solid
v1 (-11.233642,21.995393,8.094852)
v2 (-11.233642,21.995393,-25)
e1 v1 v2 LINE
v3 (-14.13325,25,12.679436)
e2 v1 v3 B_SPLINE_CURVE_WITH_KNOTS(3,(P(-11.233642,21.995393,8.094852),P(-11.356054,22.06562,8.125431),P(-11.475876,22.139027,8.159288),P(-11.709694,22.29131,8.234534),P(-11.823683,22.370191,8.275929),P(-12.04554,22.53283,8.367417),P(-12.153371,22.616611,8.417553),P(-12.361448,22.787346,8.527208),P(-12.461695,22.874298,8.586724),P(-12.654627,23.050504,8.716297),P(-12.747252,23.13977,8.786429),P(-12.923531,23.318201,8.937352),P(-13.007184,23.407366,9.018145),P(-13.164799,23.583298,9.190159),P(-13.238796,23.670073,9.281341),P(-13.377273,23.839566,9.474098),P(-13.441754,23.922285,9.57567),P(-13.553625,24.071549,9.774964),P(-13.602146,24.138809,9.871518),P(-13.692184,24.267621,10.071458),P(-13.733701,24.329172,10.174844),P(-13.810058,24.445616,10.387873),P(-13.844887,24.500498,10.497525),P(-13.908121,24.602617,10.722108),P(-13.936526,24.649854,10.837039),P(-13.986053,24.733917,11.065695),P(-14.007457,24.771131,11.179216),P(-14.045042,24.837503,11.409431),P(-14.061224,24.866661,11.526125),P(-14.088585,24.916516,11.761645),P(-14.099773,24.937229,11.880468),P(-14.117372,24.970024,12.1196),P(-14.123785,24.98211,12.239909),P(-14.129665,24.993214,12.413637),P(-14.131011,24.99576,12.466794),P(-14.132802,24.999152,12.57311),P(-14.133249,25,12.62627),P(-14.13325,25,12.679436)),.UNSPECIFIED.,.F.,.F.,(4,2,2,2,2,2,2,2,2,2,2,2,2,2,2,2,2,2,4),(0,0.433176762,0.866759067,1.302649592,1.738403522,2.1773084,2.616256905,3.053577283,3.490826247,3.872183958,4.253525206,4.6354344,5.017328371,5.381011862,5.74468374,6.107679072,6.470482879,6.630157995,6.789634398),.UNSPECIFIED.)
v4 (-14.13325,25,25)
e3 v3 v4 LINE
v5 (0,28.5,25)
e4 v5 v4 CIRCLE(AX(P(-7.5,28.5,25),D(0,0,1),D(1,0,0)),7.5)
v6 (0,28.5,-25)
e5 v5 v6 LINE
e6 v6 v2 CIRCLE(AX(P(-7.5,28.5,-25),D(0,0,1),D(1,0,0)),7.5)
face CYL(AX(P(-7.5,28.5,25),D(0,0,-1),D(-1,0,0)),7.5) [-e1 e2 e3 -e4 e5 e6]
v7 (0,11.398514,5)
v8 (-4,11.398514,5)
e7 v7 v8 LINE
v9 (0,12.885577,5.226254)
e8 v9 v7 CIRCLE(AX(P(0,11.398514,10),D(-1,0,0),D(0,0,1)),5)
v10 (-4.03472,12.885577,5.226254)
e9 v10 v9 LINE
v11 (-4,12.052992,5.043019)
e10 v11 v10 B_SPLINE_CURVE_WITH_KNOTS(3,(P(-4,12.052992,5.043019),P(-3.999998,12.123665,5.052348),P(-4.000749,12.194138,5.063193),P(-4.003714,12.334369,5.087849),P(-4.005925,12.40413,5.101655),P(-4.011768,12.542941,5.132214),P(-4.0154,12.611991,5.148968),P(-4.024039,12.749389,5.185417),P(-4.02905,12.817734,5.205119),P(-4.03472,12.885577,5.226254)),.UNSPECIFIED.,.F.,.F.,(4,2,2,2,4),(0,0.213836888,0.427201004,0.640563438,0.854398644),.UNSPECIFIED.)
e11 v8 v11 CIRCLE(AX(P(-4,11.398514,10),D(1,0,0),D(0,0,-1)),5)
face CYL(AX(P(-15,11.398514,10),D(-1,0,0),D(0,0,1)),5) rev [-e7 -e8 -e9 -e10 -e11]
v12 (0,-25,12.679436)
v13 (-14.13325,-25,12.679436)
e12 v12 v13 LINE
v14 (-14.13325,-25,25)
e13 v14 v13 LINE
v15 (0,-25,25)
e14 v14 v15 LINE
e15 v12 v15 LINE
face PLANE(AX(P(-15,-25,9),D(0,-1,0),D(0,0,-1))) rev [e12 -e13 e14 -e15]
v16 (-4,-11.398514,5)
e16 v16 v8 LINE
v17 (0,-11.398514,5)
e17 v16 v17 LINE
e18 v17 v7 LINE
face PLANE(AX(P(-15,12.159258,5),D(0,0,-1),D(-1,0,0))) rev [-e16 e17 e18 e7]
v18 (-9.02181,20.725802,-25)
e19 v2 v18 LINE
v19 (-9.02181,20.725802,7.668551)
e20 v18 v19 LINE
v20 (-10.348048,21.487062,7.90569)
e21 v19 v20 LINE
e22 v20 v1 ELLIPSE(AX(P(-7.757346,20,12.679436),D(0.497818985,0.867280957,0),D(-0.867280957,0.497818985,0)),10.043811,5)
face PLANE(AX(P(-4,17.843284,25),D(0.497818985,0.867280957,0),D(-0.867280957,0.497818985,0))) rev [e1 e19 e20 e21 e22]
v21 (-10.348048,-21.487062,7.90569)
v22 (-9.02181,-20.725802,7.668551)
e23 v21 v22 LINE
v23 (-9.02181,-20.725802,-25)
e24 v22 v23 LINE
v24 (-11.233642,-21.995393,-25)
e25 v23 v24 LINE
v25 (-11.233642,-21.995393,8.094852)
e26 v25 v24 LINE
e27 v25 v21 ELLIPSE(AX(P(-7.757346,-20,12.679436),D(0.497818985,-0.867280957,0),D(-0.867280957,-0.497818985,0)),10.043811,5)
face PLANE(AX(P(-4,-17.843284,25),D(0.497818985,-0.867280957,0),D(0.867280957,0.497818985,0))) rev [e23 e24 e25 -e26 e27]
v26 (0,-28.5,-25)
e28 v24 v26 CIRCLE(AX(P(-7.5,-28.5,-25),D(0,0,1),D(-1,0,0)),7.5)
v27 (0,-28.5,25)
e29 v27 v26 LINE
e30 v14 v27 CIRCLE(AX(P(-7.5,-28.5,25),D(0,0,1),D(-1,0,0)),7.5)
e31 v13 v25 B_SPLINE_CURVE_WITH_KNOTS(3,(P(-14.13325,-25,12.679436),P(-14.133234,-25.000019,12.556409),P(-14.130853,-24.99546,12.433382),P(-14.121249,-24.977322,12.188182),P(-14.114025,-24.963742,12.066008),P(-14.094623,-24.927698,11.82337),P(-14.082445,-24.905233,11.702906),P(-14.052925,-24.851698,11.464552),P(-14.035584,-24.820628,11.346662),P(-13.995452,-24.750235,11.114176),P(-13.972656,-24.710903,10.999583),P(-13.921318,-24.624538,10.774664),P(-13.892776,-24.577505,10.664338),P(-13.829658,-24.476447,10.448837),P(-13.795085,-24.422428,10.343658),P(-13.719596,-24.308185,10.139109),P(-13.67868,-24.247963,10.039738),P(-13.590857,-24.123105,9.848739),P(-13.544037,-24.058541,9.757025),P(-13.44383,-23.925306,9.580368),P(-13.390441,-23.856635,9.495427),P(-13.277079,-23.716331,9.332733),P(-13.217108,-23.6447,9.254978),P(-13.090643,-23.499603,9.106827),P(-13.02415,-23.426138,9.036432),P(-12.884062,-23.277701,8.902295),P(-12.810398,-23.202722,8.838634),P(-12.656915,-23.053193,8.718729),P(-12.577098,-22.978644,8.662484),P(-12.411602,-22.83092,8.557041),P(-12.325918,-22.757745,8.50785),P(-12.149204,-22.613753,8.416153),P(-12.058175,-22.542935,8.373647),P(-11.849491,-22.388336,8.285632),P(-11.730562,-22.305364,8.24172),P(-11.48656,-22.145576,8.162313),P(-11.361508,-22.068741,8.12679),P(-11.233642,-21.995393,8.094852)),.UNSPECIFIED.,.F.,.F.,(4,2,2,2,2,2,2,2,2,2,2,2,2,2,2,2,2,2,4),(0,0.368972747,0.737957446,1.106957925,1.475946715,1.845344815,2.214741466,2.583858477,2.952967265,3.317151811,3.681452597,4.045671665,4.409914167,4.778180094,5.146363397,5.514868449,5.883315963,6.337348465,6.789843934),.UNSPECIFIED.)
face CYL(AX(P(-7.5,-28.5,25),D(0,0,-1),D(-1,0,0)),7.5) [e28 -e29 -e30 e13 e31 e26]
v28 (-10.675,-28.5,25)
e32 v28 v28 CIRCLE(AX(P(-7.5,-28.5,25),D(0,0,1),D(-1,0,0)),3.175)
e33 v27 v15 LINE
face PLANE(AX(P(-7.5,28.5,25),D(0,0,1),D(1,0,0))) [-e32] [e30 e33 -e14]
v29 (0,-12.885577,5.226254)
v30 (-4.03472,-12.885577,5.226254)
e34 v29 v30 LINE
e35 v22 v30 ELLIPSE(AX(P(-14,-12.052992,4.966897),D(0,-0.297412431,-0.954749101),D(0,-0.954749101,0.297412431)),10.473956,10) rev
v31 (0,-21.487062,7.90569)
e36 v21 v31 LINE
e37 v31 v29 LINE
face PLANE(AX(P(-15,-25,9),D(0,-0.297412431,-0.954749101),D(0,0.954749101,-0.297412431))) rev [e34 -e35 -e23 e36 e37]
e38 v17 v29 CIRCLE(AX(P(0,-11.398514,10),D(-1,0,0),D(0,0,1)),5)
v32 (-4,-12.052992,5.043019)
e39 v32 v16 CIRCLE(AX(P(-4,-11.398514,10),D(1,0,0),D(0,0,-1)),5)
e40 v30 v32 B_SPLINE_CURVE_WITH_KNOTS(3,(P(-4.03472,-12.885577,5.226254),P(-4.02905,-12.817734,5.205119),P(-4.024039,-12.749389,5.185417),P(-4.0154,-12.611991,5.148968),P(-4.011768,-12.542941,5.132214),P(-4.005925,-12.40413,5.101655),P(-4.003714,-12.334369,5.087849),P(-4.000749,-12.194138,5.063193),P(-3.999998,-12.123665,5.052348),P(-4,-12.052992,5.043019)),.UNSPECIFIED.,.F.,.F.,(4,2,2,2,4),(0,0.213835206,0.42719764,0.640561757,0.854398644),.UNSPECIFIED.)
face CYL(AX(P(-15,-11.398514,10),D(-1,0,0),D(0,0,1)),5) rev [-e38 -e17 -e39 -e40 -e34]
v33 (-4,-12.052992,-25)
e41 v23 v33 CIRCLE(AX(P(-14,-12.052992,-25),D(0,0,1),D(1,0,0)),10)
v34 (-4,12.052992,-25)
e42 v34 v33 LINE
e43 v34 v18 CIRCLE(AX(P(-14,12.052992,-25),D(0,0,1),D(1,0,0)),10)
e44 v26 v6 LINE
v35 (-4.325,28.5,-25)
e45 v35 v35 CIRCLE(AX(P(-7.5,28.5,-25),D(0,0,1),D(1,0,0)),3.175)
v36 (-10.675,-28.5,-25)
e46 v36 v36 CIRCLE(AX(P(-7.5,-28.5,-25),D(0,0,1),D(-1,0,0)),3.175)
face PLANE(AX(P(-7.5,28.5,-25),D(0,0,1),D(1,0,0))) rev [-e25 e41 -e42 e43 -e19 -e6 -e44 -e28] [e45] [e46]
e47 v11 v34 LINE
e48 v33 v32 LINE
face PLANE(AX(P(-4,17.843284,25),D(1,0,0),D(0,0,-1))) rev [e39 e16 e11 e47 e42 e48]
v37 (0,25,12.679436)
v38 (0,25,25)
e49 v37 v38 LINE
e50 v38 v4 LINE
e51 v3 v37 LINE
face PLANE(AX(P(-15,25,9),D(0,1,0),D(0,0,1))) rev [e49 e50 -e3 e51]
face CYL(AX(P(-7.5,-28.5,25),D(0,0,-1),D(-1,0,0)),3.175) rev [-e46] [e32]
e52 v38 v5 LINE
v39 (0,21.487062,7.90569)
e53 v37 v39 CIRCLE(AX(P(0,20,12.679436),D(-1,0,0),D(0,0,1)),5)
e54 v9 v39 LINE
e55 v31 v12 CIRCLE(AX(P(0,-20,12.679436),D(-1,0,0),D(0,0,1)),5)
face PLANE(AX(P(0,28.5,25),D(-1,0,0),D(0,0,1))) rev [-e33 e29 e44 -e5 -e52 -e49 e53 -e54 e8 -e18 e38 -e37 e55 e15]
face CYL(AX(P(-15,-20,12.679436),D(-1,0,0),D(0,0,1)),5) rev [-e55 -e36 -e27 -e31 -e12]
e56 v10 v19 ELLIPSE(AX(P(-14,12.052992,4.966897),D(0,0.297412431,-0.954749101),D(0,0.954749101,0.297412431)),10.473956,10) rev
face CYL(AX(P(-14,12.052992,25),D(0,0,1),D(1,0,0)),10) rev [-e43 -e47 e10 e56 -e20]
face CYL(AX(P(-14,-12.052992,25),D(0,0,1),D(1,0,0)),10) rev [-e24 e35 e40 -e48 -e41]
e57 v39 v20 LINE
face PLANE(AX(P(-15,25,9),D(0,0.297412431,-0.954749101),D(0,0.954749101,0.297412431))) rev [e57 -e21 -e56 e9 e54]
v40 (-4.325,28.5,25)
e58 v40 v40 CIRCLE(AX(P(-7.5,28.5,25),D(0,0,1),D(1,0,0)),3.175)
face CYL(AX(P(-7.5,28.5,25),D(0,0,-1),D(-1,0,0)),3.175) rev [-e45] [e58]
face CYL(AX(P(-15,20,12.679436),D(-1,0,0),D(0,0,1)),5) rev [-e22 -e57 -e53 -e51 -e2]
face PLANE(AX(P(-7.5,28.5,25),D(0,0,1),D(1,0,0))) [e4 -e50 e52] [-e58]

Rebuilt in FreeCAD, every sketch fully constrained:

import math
import FreeCAD as App
import Part
import Sketcher
from FreeCAD import Vector


def edges_at(feature, points):
    """Names of the edges that pass closest to the given points."""
    edges = feature.Shape.Edges
    near = lambda p: min(range(len(edges)), key=lambda i: edges[i].distToShape(Part.Vertex(*p))[0])
    return sorted({f"Edge{near(p) + 1}" for p in points})

doc = App.newDocument("Part")
body = doc.addObject("PartDesign::Body", "Body")

sketch1 = doc.addObject("Sketcher::SketchObject", "Sketch")
body.addObject(sketch1)
sketch1.AttachmentSupport = (doc.XY_Plane, [""])
sketch1.MapMode = "FlatFace"
sketch1.addGeometry(Part.LineSegment(Vector(-11.2, 22, 0), Vector(-4, 17.8, 0)), False)
sketch1.addGeometry(Part.LineSegment(Vector(-4, 17.8, 0), Vector(-4, -17.8, 0)), False)
sketch1.addGeometry(Part.LineSegment(Vector(-4, -17.8, 0), Vector(-11.2, -22, 0)), False)
sketch1.addGeometry(Part.ArcOfCircle(Part.Circle(Vector(-7.5, -28.5, 0), Vector(0, 0, 1), 7.5), math.radians(120), math.radians(360)), False)
sketch1.addGeometry(Part.LineSegment(Vector(0, -28.5, 0), Vector(0, 28.5, 0)), False)
sketch1.addGeometry(Part.ArcOfCircle(Part.Circle(Vector(-7.5, 28.5, 0), Vector(0, 0, 1), 7.5), math.radians(0), math.radians(240)), False)
sketch1.addGeometry(Part.Circle(Vector(-7.5, -28.5, 0), Vector(0, 0, 1), 3.2), False)
sketch1.addGeometry(Part.Circle(Vector(-7.5, 28.5, 0), Vector(0, 0, 1), 3.2), False)
sketch1.addConstraint(Sketcher.Constraint("Coincident", 0, 2, 1, 1))
sketch1.addConstraint(Sketcher.Constraint("Coincident", 1, 2, 2, 1))
sketch1.addConstraint(Sketcher.Constraint("Tangent", 2, 2, 3, 1))
sketch1.addConstraint(Sketcher.Constraint("Tangent", 3, 2, 4, 1))
sketch1.addConstraint(Sketcher.Constraint("Tangent", 4, 2, 5, 1))
sketch1.addConstraint(Sketcher.Constraint("Tangent", 5, 2, 0, 1))
sketch1.addConstraint(Sketcher.Constraint("Vertical", 1))
sketch1.addConstraint(Sketcher.Constraint("Vertical", 4))
sketch1.addConstraint(Sketcher.Constraint("Coincident", 6, 3, 3, 3))
sketch1.addConstraint(Sketcher.Constraint("Coincident", 7, 3, 5, 3))
sketch1.addConstraint(Sketcher.Constraint("Equal", 3, 5))
sketch1.addConstraint(Sketcher.Constraint("Equal", 6, 7))
sketch1.addConstraint(Sketcher.Constraint("Symmetric", 3, 2, 4, 2, -1, 1))
sketch1.addConstraint(Sketcher.Constraint("Vertical", 2, 2, 5, 2))
sketch1.addConstraint(Sketcher.Constraint("Radius", 3, 7.5))
sketch1.addConstraint(Sketcher.Constraint("Diameter", 6, 6.35))
sketch1.addConstraint(Sketcher.Constraint("DistanceY", 4, 1, 4, 2, 57.0))
sketch1.addConstraint(Sketcher.Constraint("DistanceX", 0, 2, -1, 1, 4.0))
sketch1.addConstraint(Sketcher.Constraint("Distance", 0, 8.340599))
pad1 = doc.addObject("PartDesign::Pad", "Pad")
body.addObject(pad1)
pad1.Profile = sketch1
pad1.Length = 50
pad1.Midplane = True
doc.recompute()

fillet = doc.addObject("PartDesign::Fillet", "Fillet")
body.addObject(fillet)
fillet.Base = (pad1, edges_at(pad1, [(-4, -17.843, 0), (-4, 17.843, 0)]))
fillet.Radius = 10

sketch2 = doc.addObject("Sketcher::SketchObject", "Sketch001")
body.addObject(sketch2)
sketch2.AttachmentSupport = (doc.YZ_Plane, [""])
sketch2.MapMode = "FlatFace"
sketch2.addGeometry(Part.LineSegment(Vector(12, 5, 0), Vector(25, 9, 0)), False)
sketch2.addGeometry(Part.LineSegment(Vector(25, 9, 0), Vector(25, 30, 0)), False)
sketch2.addGeometry(Part.LineSegment(Vector(25, 30, 0), Vector(-25, 30, 0)), False)
sketch2.addGeometry(Part.LineSegment(Vector(-25, 30, 0), Vector(-25, 9, 0)), False)
sketch2.addGeometry(Part.LineSegment(Vector(-25, 9, 0), Vector(-12, 5, 0)), False)
sketch2.addGeometry(Part.LineSegment(Vector(-12, 5, 0), Vector(12, 5, 0)), False)
sketch2.addConstraint(Sketcher.Constraint("Coincident", 0, 2, 1, 1))
sketch2.addConstraint(Sketcher.Constraint("Coincident", 1, 2, 2, 1))
sketch2.addConstraint(Sketcher.Constraint("Coincident", 2, 2, 3, 1))
sketch2.addConstraint(Sketcher.Constraint("Coincident", 3, 2, 4, 1))
sketch2.addConstraint(Sketcher.Constraint("Coincident", 4, 2, 5, 1))
sketch2.addConstraint(Sketcher.Constraint("Coincident", 5, 2, 0, 1))
sketch2.addConstraint(Sketcher.Constraint("Vertical", 1))
sketch2.addConstraint(Sketcher.Constraint("Horizontal", 2))
sketch2.addConstraint(Sketcher.Constraint("Vertical", 3))
sketch2.addConstraint(Sketcher.Constraint("Horizontal", 5))
sketch2.addConstraint(Sketcher.Constraint("Symmetric", 0, 2, 3, 2, -2))
sketch2.addConstraint(Sketcher.Constraint("Equal", 0, 4))
sketch2.addConstraint(Sketcher.Constraint("DistanceX", 2, 2, 2, 1, 50.0))
sketch2.addConstraint(Sketcher.Constraint("DistanceY", -1, 1, 0, 2, 9.0))
sketch2.addConstraint(Sketcher.Constraint("DistanceY", -1, 1, 4, 2, 5.0))
sketch2.addConstraint(Sketcher.Constraint("DistanceY", 1, 1, 1, 2, 20.873539))
sketch2.addConstraint(Sketcher.Constraint("DistanceX", 5, 1, 5, 2, 24.318515))
pocket1 = doc.addObject("PartDesign::Pocket", "Pocket")
body.addObject(pocket1)
pocket1.Profile = sketch2
pocket1.Type = "ThroughAll"
doc.recompute()

fillet2 = doc.addObject("PartDesign::Fillet", "Fillet001")
body.addObject(fillet2)
fillet2.Base = (pocket1, edges_at(pocket1, [
    (-2, 12.159, 5),
    (-2, -12.159, 5),
    (-7.067, -25, 9),
    (-7.067, 25, 9),
]))
fillet2.Radius = 5

doc.recompute()
